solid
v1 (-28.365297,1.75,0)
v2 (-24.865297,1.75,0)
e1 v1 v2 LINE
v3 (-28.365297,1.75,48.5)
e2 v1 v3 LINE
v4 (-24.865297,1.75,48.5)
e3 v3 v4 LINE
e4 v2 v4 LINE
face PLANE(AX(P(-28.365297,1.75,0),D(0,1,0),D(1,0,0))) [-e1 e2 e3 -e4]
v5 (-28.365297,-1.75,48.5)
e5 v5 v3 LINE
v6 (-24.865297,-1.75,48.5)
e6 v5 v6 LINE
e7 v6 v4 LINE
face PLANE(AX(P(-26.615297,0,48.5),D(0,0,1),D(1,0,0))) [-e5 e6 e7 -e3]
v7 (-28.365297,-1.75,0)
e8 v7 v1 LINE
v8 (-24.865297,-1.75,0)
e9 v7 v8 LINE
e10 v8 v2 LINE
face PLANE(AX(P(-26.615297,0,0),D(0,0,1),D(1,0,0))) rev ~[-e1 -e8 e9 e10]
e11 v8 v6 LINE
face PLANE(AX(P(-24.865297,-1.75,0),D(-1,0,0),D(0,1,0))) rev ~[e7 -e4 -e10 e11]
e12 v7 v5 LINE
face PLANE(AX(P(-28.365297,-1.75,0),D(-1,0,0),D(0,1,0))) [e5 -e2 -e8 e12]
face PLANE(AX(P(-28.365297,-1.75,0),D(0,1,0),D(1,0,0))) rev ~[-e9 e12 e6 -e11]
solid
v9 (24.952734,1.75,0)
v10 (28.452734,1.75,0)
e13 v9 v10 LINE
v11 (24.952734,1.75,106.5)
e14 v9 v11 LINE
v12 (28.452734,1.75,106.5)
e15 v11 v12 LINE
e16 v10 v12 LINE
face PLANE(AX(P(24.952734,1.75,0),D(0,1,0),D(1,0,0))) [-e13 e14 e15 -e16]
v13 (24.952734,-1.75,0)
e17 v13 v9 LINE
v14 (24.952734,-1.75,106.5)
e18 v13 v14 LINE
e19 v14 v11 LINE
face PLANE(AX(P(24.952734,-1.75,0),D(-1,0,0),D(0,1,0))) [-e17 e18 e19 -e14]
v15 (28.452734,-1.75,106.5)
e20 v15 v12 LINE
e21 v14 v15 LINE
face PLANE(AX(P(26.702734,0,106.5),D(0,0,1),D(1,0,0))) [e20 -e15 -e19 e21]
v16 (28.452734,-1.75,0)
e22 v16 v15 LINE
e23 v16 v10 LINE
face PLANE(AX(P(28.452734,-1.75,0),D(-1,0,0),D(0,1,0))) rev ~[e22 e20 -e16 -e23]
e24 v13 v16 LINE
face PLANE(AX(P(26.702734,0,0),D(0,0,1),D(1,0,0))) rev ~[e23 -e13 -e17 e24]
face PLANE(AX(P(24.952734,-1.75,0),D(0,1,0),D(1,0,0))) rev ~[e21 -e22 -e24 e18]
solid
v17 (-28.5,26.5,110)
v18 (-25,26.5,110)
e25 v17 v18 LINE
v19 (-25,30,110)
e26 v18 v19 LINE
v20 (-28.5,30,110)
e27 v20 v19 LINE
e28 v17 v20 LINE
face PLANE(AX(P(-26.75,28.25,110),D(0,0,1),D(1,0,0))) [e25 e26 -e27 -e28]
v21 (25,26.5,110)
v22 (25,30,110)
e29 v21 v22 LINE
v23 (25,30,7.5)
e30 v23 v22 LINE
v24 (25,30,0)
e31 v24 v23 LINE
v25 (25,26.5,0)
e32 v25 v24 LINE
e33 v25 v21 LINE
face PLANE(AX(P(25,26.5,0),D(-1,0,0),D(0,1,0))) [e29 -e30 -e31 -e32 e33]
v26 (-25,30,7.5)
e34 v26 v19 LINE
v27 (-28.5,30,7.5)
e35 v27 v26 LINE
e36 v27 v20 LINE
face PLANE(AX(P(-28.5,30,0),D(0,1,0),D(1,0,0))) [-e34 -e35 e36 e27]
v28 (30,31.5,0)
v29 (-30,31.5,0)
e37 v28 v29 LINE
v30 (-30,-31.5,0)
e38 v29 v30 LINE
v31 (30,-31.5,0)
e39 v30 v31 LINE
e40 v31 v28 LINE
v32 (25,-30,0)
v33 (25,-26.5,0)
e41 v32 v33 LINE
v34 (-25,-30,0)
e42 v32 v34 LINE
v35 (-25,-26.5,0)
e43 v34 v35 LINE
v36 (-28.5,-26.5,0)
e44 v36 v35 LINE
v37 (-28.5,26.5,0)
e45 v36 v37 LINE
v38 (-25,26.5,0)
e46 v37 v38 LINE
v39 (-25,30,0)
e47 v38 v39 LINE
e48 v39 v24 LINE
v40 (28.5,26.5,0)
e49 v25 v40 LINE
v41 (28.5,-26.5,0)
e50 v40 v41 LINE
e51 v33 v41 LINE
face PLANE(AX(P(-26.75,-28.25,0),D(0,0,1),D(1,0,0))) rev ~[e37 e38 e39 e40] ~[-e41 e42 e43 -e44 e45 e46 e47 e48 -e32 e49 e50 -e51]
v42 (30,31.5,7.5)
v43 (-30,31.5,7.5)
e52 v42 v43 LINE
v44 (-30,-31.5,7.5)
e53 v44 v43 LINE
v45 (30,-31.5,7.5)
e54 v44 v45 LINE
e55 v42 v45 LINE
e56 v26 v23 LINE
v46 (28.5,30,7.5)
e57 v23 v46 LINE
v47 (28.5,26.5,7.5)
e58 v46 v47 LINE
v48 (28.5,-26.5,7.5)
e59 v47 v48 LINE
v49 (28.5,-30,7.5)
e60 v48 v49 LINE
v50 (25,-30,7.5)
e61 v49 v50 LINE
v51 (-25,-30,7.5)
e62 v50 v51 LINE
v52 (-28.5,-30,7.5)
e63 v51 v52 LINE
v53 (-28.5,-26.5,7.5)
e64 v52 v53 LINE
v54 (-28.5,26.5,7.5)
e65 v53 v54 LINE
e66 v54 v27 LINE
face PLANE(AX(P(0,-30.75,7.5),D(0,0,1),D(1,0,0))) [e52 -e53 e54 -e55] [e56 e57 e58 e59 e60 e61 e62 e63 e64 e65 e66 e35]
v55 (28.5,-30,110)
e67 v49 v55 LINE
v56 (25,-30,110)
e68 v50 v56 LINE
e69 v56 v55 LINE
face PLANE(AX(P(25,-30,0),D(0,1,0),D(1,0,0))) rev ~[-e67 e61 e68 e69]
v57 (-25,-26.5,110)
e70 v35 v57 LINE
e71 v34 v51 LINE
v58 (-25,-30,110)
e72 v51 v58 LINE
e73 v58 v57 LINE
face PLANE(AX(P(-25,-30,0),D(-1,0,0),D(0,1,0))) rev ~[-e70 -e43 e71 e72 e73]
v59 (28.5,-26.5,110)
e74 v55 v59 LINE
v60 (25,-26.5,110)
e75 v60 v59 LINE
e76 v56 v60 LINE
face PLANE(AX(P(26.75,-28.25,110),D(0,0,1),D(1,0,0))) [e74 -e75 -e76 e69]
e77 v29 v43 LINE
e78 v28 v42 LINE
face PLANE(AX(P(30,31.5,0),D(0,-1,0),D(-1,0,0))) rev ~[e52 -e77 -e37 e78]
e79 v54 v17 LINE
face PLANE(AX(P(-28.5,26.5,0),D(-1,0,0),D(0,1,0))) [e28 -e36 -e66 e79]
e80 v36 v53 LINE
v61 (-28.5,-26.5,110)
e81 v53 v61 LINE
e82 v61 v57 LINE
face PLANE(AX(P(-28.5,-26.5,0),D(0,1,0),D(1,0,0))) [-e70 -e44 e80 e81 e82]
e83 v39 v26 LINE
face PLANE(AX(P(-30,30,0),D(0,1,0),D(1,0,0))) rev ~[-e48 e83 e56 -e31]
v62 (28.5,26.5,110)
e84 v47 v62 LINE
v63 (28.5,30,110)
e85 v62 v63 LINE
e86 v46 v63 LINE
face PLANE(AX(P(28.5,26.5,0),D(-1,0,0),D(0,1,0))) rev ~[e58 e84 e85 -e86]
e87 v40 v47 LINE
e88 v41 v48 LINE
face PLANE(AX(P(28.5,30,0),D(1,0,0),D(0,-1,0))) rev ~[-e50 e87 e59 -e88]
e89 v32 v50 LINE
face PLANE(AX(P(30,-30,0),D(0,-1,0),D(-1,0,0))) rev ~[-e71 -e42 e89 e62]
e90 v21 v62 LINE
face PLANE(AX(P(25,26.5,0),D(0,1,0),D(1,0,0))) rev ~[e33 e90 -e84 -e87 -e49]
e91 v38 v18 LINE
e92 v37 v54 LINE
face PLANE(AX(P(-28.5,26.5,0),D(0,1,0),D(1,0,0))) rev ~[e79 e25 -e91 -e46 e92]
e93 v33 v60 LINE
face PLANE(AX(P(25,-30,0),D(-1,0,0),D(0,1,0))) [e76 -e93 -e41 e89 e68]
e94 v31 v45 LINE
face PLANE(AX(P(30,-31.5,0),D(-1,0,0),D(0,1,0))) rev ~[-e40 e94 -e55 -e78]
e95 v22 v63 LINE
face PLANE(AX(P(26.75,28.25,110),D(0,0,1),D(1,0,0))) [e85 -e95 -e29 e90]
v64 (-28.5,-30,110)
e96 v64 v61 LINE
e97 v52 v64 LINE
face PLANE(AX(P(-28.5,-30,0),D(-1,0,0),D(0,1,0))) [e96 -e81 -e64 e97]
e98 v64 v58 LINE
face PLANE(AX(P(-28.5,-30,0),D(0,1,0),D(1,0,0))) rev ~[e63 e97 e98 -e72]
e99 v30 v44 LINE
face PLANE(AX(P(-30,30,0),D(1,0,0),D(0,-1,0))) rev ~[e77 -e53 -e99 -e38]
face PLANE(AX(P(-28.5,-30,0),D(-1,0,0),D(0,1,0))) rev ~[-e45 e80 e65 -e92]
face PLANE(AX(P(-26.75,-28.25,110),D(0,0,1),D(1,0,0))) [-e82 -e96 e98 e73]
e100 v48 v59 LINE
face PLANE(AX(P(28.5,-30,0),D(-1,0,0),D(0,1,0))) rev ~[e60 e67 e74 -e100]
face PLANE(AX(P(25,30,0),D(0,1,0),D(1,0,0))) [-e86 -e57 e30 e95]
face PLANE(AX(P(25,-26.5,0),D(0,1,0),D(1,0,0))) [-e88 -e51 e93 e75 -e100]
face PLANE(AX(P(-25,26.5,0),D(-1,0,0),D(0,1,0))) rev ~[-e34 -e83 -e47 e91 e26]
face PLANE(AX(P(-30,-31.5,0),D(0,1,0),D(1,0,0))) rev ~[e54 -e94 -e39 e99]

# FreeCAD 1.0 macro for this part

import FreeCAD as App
import Part
import Sketcher

V = App.Vector
Q = App.Units.Quantity


def add_polygon(sketch, points):
    """Adds a closed chain of lines whose ends are joined by coincident constraints."""
    first, n = sketch.GeometryCount, len(points)
    for a, b in zip(points, points[1:] + points[:1]):
        sketch.addGeometry(Part.LineSegment(App.Vector(*a, 0), App.Vector(*b, 0)), False)
    for i in range(n):
        sketch.addConstraint(Sketcher.Constraint("Coincident", first + i, 2, first + (i + 1) % n, 1))

doc = App.newDocument("Part")
body = doc.addObject("PartDesign::Body", "Body")

sketch1 = doc.addObject("Sketcher::SketchObject", "Sketch")
body.addObject(sketch1)
sketch1.AttachmentSupport = (doc.XY_Plane, [""])
sketch1.MapMode = "FlatFace"
add_polygon(sketch1, [(28.5, -30), (30, -30), (30, 30), (28.5, 30)])
sketch1.addConstraint(Sketcher.Constraint("Horizontal", 0))
sketch1.addConstraint(Sketcher.Constraint("Vertical", 1))
sketch1.addConstraint(Sketcher.Constraint("Horizontal", 2))
sketch1.addConstraint(Sketcher.Constraint("Vertical", 3))
sketch1.addConstraint(Sketcher.Constraint("DistanceY", 1, 1, 1, 2, Q("60 mm")))
sketch1.addConstraint(Sketcher.Constraint("DistanceX", 0, 1, 0, 2, Q("1.5 mm")))
sketch1.addConstraint(Sketcher.Constraint("DistanceX", -1, 1, 0, 2, Q("30 mm")))
sketch1.addConstraint(Sketcher.Constraint("DistanceY", 0, 2, -1, 1, Q("30 mm")))
pad1 = doc.addObject("PartDesign::Pad", "Pad")
body.addObject(pad1)
pad1.Profile = sketch1
pad1.Length = 7.5

sketch2 = doc.addObject("Sketcher::SketchObject", "Sketch001")
body.addObject(sketch2)
sketch2.AttachmentSupport = (doc.XY_Plane, [""])
sketch2.MapMode = "FlatFace"
add_polygon(sketch2, [(30, 30), (30, 31.5), (-30, 31.5), (-30, 30)])
sketch2.addConstraint(Sketcher.Constraint("Vertical", 0))
sketch2.addConstraint(Sketcher.Constraint("Horizontal", 1))
sketch2.addConstraint(Sketcher.Constraint("Vertical", 2))
sketch2.addConstraint(Sketcher.Constraint("Horizontal", 3))
sketch2.addConstraint(Sketcher.Constraint("DistanceX", 1, 2, 1, 1, Q("60 mm")))
sketch2.addConstraint(Sketcher.Constraint("DistanceY", 0, 1, 0, 2, Q("1.5 mm")))
sketch2.addConstraint(Sketcher.Constraint("DistanceX", -1, 1, 0, 2, Q("30 mm")))
sketch2.addConstraint(Sketcher.Constraint("DistanceY", -1, 1, 2, 2, Q("30 mm")))
pad2 = doc.addObject("PartDesign::Pad", "Pad001")
body.addObject(pad2)
pad2.Profile = sketch2
pad2.Length = 7.5

sketch3 = doc.addObject("Sketcher::SketchObject", "Sketch002")
body.addObject(sketch3)
sketch3.AttachmentSupport = (doc.XY_Plane, [""])
sketch3.MapMode = "FlatFace"
add_polygon(sketch3, [(-30, -31.5), (30, -31.5), (30, -30), (-28.5, -30), (-28.5, 30), (-30, 30)])
sketch3.addConstraint(Sketcher.Constraint("Horizontal", 0))
sketch3.addConstraint(Sketcher.Constraint("Vertical", 1))
sketch3.addConstraint(Sketcher.Constraint("Horizontal", 2))
sketch3.addConstraint(Sketcher.Constraint("Vertical", 3))
sketch3.addConstraint(Sketcher.Constraint("Horizontal", 4))
sketch3.addConstraint(Sketcher.Constraint("Vertical", 5))
sketch3.addConstraint(Sketcher.Constraint("Symmetric", 1, 2, 4, 2, -1, 1))
sketch3.addConstraint(Sketcher.Constraint("Equal", 4, 1))
sketch3.addConstraint(Sketcher.Constraint("Equal", 0, 3))
sketch3.addConstraint(Sketcher.Constraint("DistanceX", 0, 1, 0, 2, Q("60 mm")))
sketch3.addConstraint(Sketcher.Constraint("DistanceX", 2, 2, 2, 1, Q("58.5 mm")))
pad3 = doc.addObject("PartDesign::Pad", "Pad002")
body.addObject(pad3)
pad3.Profile = sketch3
pad3.Length = 7.5

sketch4 = doc.addObject("Sketcher::SketchObject", "Sketch003")
body.addObject(sketch4)
sketch4.AttachmentSupport = (doc.XY_Plane, [""])
sketch4.MapMode = "FlatFace"
add_polygon(sketch4, [(-28.5, 30), (-28.5, 26.5), (-25, 26.5), (-25, 30)])
sketch4.addConstraint(Sketcher.Constraint("Vertical", 0))
sketch4.addConstraint(Sketcher.Constraint("Horizontal", 1))
sketch4.addConstraint(Sketcher.Constraint("Vertical", 2))
sketch4.addConstraint(Sketcher.Constraint("Horizontal", 3))
sketch4.addConstraint(Sketcher.Constraint("Equal", 3, 0))
sketch4.addConstraint(Sketcher.Constraint("DistanceX", 1, 1, 1, 2, Q("3.5 mm")))
sketch4.addConstraint(Sketcher.Constraint("DistanceX", 1, 2, -1, 1, Q("25 mm")))
sketch4.addConstraint(Sketcher.Constraint("DistanceY", -1, 1, 2, 2, Q("30 mm")))
pad4 = doc.addObject("PartDesign::Pad", "Pad003")
body.addObject(pad4)
pad4.Profile = sketch4
pad4.Length = 110

sketch5 = doc.addObject("Sketcher::SketchObject", "Sketch004")
body.addObject(sketch5)
sketch5.AttachmentSupport = (doc.XY_Plane, [""])
sketch5.MapMode = "FlatFace"
add_polygon(sketch5, [(-28.5, -26.5), (-28.5, -30), (-25, -30), (-25, -26.5)])
add_polygon(sketch5, [(25, -26.5), (25, -30), (28.5, -30), (28.5, -26.5)])
add_polygon(sketch5, [(25, 30), (25, 26.5), (28.5, 26.5), (28.5, 30)])
sketch5.addConstraint(Sketcher.Constraint("Vertical", 0))
sketch5.addConstraint(Sketcher.Constraint("Horizontal", 1))
sketch5.addConstraint(Sketcher.Constraint("Vertical", 2))
sketch5.addConstraint(Sketcher.Constraint("Horizontal", 3))
sketch5.addConstraint(Sketcher.Constraint("Vertical", 4))
sketch5.addConstraint(Sketcher.Constraint("Horizontal", 5))
sketch5.addConstraint(Sketcher.Constraint("Vertical", 6))
sketch5.addConstraint(Sketcher.Constraint("Horizontal", 7))
sketch5.addConstraint(Sketcher.Constraint("Vertical", 8))
sketch5.addConstraint(Sketcher.Constraint("Horizontal", 9))
sketch5.addConstraint(Sketcher.Constraint("Vertical", 10))
sketch5.addConstraint(Sketcher.Constraint("Horizontal", 11))
sketch5.addConstraint(Sketcher.Constraint("Symmetric", 2, 2, 8, 2, -1, 1))
sketch5.addConstraint(Sketcher.Constraint("Symmetric", 0, 2, 10, 2, -1, 1))
sketch5.addConstraint(Sketcher.Constraint("Symmetric", 1, 2, 4, 2, -2))
sketch5.addConstraint(Sketcher.Constraint("Symmetric", 3, 2, 6, 2, -2))
sketch5.addConstraint(Sketcher.Constraint("Equal", 11, 0))
sketch5.addConstraint(Sketcher.Constraint("DistanceX", 1, 1, 1, 2, Q("3.5 mm")))
sketch5.addConstraint(Sketcher.Constraint("DistanceY", 0, 2, -1, 1, Q("30 mm")))
sketch5.addConstraint(Sketcher.Constraint("DistanceX", 1, 2, -1, 1, Q("25 mm")))
pad5 = doc.addObject("PartDesign::Pad", "Pad004")
body.addObject(pad5)
pad5.Profile = sketch5
pad5.Length = 110
body2 = doc.addObject("PartDesign::Body", "Body001")

sketch6 = doc.addObject("Sketcher::SketchObject", "Sketch005")
body2.addObject(sketch6)
sketch6.AttachmentSupport = (doc.getObject("XY_Plane001"), [""])
sketch6.MapMode = "FlatFace"
add_polygon(sketch6, [(-28.4, 1.8), (-28.4, -1.8), (-24.9, -1.8), (-24.9, 1.8)])
sketch6.addConstraint(Sketcher.Constraint("Vertical", 0))
sketch6.addConstraint(Sketcher.Constraint("Horizontal", 1))
sketch6.addConstraint(Sketcher.Constraint("Vertical", 2))
sketch6.addConstraint(Sketcher.Constraint("Horizontal", 3))
sketch6.addConstraint(Sketcher.Constraint("Equal", 3, 0))
sketch6.addConstraint(Sketcher.Constraint("DistanceX", 1, 1, 1, 2, Q("3.5 mm")))
sketch6.addConstraint(Sketcher.Constraint("DistanceY", 0, 2, -1, 1, Q("1.75 mm")))
sketch6.addConstraint(Sketcher.Constraint("DistanceX", 0, 2, -1, 1, Q("28.365297 mm")))
pad6 = doc.addObject("PartDesign::Pad", "Pad005")
body2.addObject(pad6)
pad6.Profile = sketch6
pad6.Length = 48.5
body3 = doc.addObject("PartDesign::Body", "Body002")

sketch7 = doc.addObject("Sketcher::SketchObject", "Sketch006")
body3.addObject(sketch7)
sketch7.AttachmentSupport = (doc.getObject("XY_Plane002"), [""])
sketch7.MapMode = "FlatFace"
add_polygon(sketch7, [(25, 1.8), (25, -1.8), (28.5, -1.8), (28.5, 1.8)])
sketch7.addConstraint(Sketcher.Constraint("Vertical", 0))
sketch7.addConstraint(Sketcher.Constraint("Horizontal", 1))
sketch7.addConstraint(Sketcher.Constraint("Vertical", 2))
sketch7.addConstraint(Sketcher.Constraint("Horizontal", 3))
sketch7.addConstraint(Sketcher.Constraint("Equal", 3, 0))
sketch7.addConstraint(Sketcher.Constraint("DistanceX", 1, 1, 1, 2, Q("3.5 mm")))
sketch7.addConstraint(Sketcher.Constraint("DistanceY", 0, 2, -1, 1, Q("1.75 mm")))
sketch7.addConstraint(Sketcher.Constraint("DistanceX", -1, 1, 0, 2, Q("24.952734 mm")))
pad7 = doc.addObject("PartDesign::Pad", "Pad006")
body3.addObject(pad7)
pad7.Profile = sketch7
pad7.Length = 106.5

doc.recompute()
